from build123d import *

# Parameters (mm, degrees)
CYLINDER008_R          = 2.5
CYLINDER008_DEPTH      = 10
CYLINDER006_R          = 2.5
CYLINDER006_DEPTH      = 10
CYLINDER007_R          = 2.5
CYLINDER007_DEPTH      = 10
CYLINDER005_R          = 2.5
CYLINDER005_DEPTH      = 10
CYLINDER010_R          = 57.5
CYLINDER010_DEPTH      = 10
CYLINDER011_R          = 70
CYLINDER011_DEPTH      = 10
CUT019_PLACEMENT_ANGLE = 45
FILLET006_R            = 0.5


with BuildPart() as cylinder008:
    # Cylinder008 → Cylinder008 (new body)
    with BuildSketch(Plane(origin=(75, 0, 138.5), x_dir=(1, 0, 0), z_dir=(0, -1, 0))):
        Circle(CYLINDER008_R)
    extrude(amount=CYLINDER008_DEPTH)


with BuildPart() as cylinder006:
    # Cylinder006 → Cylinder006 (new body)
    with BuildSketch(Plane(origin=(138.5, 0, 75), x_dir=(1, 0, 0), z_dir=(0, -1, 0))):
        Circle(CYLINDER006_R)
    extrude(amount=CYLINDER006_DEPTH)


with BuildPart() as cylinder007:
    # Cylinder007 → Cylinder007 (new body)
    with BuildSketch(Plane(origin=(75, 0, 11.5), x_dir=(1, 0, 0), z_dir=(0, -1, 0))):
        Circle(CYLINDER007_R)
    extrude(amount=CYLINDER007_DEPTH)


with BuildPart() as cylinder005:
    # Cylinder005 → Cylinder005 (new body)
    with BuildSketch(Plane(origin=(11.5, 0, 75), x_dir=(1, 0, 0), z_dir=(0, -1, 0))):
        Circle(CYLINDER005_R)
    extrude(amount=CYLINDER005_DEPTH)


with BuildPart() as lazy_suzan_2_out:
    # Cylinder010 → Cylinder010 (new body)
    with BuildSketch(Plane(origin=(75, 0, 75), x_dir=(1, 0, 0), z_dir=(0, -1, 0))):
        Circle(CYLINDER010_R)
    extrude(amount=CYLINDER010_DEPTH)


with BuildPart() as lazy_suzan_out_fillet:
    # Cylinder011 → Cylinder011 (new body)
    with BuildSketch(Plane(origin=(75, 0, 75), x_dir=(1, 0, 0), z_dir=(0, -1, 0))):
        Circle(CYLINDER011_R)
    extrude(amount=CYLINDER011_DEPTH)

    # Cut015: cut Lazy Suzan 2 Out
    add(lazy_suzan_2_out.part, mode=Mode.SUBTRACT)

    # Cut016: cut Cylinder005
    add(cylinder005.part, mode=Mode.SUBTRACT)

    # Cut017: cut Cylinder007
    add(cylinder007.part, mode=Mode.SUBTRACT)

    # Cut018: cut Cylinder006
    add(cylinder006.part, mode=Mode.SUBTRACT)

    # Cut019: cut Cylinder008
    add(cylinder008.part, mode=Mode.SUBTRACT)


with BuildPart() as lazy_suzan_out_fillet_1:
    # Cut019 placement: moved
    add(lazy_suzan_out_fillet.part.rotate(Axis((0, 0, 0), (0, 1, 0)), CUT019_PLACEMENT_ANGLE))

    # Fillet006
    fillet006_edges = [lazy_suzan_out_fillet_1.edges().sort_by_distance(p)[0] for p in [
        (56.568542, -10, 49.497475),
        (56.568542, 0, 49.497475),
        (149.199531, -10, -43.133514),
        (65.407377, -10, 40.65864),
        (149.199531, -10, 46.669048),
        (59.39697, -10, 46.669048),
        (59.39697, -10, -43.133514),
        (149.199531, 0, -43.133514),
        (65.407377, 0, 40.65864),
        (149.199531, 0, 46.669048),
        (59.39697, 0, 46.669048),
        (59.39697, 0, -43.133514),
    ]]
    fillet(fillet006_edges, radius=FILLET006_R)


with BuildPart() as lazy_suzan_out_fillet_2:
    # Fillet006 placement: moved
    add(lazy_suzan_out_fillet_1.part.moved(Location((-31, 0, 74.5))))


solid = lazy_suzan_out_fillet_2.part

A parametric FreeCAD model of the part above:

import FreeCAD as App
import Part
import Sketcher

V = App.Vector


def edges_at(feature, points):
    """Names of the edges that pass closest to the given points."""
    edges = feature.Shape.Edges
    near = lambda p: min(range(len(edges)), key=lambda i: edges[i].distToShape(Part.Vertex(*p))[0])
    return sorted({f"Edge{near(p) + 1}" for p in points})

doc = App.newDocument("Part")
body = doc.addObject("PartDesign::Body", "Body")

sketch1 = doc.addObject("Sketcher::SketchObject", "Sketch")
body.addObject(sketch1)
sketch1.AttachmentSupport = (doc.XZ_Plane, [""])
sketch1.MapMode = "FlatFace"
sketch1.addGeometry(Part.Circle(V(75, 138.5, 0), V(0, 0, 1), 2.5), False)
sketch1.addConstraint(Sketcher.Constraint("Diameter", 0, 5.0))
sketch1.addConstraint(Sketcher.Constraint("DistanceX", -1, 1, 0, 3, 75.0))
sketch1.addConstraint(Sketcher.Constraint("DistanceY", -1, 1, 0, 3, 138.5))
pad1 = doc.addObject("PartDesign::Pad", "Pad")
body.addObject(pad1)
pad1.Profile = sketch1
pad1.Length = 10
body2 = doc.addObject("PartDesign::Body", "Body001")

sketch2 = doc.addObject("Sketcher::SketchObject", "Sketch001")
body2.addObject(sketch2)
sketch2.AttachmentSupport = (doc.getObject("XZ_Plane001"), [""])
sketch2.MapMode = "FlatFace"
sketch2.addGeometry(Part.Circle(V(138.5, 75, 0), V(0, 0, 1), 2.5), False)
sketch2.addConstraint(Sketcher.Constraint("Diameter", 0, 5.0))
sketch2.addConstraint(Sketcher.Constraint("DistanceY", -1, 1, 0, 3, 75.0))
sketch2.addConstraint(Sketcher.Constraint("DistanceX", -1, 1, 0, 3, 138.5))
pad2 = doc.addObject("PartDesign::Pad", "Pad001")
body2.addObject(pad2)
pad2.Profile = sketch2
pad2.Length = 10
body3 = doc.addObject("PartDesign::Body", "Body002")

sketch3 = doc.addObject("Sketcher::SketchObject", "Sketch002")
body3.addObject(sketch3)
sketch3.AttachmentSupport = (doc.getObject("XZ_Plane002"), [""])
sketch3.MapMode = "FlatFace"
sketch3.addGeometry(Part.Circle(V(75, 11.5, 0), V(0, 0, 1), 2.5), False)
sketch3.addConstraint(Sketcher.Constraint("Diameter", 0, 5.0))
sketch3.addConstraint(Sketcher.Constraint("DistanceX", -1, 1, 0, 3, 75.0))
sketch3.addConstraint(Sketcher.Constraint("DistanceY", -1, 1, 0, 3, 11.5))
pad3 = doc.addObject("PartDesign::Pad", "Pad002")
body3.addObject(pad3)
pad3.Profile = sketch3
pad3.Length = 10
body4 = doc.addObject("PartDesign::Body", "Body003")

sketch4 = doc.addObject("Sketcher::SketchObject", "Sketch003")
body4.addObject(sketch4)
sketch4.AttachmentSupport = (doc.getObject("XZ_Plane003"), [""])
sketch4.MapMode = "FlatFace"
sketch4.addGeometry(Part.Circle(V(11.5, 75, 0), V(0, 0, 1), 2.5), False)
sketch4.addConstraint(Sketcher.Constraint("Diameter", 0, 5.0))
sketch4.addConstraint(Sketcher.Constraint("DistanceY", -1, 1, 0, 3, 75.0))
sketch4.addConstraint(Sketcher.Constraint("DistanceX", -1, 1, 0, 3, 11.5))
pad4 = doc.addObject("PartDesign::Pad", "Pad003")
body4.addObject(pad4)
pad4.Profile = sketch4
pad4.Length = 10
body5 = doc.addObject("PartDesign::Body", "Body004")

sketch5 = doc.addObject("Sketcher::SketchObject", "Sketch004")
body5.addObject(sketch5)
sketch5.AttachmentSupport = (doc.getObject("XZ_Plane004"), [""])
sketch5.MapMode = "FlatFace"
sketch5.addGeometry(Part.Circle(V(75, 75, 0), V(0, 0, 1), 58), False)
sketch5.addConstraint(Sketcher.Constraint("Diameter", 0, 115.0))
sketch5.addConstraint(Sketcher.Constraint("DistanceX", -1, 1, 0, 3, 75.0))
sketch5.addConstraint(Sketcher.Constraint("DistanceY", -1, 1, 0, 3, 75.0))
pad5 = doc.addObject("PartDesign::Pad", "Pad004")
body5.addObject(pad5)
pad5.Profile = sketch5
pad5.Length = 10
body6 = doc.addObject("PartDesign::Body", "Body005")

sketch6 = doc.addObject("Sketcher::SketchObject", "Sketch005")
body6.addObject(sketch6)
sketch6.AttachmentSupport = (doc.getObject("XZ_Plane005"), [""])
sketch6.MapMode = "FlatFace"
sketch6.addGeometry(Part.Circle(V(75, 75, 0), V(0, 0, 1), 70), False)
sketch6.addConstraint(Sketcher.Constraint("Diameter", 0, 140.0))
sketch6.addConstraint(Sketcher.Constraint("DistanceX", -1, 1, 0, 3, 75.0))
sketch6.addConstraint(Sketcher.Constraint("DistanceY", -1, 1, 0, 3, 75.0))
pad6 = doc.addObject("PartDesign::Pad", "Pad005")
body6.addObject(pad6)
pad6.Profile = sketch6
pad6.Length = 10
doc.recompute()

boolean = doc.addObject("PartDesign::Boolean", "Boolean")
body6.addObject(boolean)
boolean.Type = "Cut"
boolean.addObjects([body5])
doc.recompute()

boolean2 = doc.addObject("PartDesign::Boolean", "Boolean001")
body6.addObject(boolean2)
boolean2.Type = "Cut"
boolean2.addObjects([body4])
doc.recompute()

boolean3 = doc.addObject("PartDesign::Boolean", "Boolean002")
body6.addObject(boolean3)
boolean3.Type = "Cut"
boolean3.addObjects([body3])
doc.recompute()

boolean4 = doc.addObject("PartDesign::Boolean", "Boolean003")
body6.addObject(boolean4)
boolean4.Type = "Cut"
boolean4.addObjects([body2])
doc.recompute()

boolean5 = doc.addObject("PartDesign::Boolean", "Boolean004")
body6.addObject(boolean5)
boolean5.Type = "Cut"
boolean5.addObjects([body])
body7 = doc.addObject("PartDesign::Body", "Body006")
doc.recompute()

body6.Placement = App.Placement(V(0, 0, 0), App.Rotation(V(0, 1, 0), 45))
boolean6 = doc.addObject("PartDesign::Boolean", "Boolean005")
body7.addObject(boolean6)
boolean6.Type = "Fuse"
boolean6.addObjects([body6])
doc.recompute()

fillet = doc.addObject("PartDesign::Fillet", "Fillet")
body7.addObject(fillet)
fillet.Base = (boolean6, edges_at(boolean6, [
    (56.569, -10, 49.497),
    (56.569, 0, 49.497),
    (149.2, -10, -43.134),
    (65.407, -10, 40.659),
    (149.2, -10, 46.669),
    (59.397, -10, 46.669),
    (59.397, -10, -43.134),
    (149.2, 0, -43.134),
    (65.407, 0, 40.659),
    (149.2, 0, 46.669),
    (59.397, 0, 46.669),
    (59.397, 0, -43.134),
]))
fillet.Radius = 0.5
body8 = doc.addObject("PartDesign::Body", "Body007")
doc.recompute()

body7.Placement = App.Placement(V(-31, 0, 74.5), App.Rotation(V(0, 0, 1), 0))
boolean7 = doc.addObject("PartDesign::Boolean", "Boolean006")
body8.addObject(boolean7)
boolean7.Type = "Fuse"
boolean7.addObjects([body7])

doc.recompute()
